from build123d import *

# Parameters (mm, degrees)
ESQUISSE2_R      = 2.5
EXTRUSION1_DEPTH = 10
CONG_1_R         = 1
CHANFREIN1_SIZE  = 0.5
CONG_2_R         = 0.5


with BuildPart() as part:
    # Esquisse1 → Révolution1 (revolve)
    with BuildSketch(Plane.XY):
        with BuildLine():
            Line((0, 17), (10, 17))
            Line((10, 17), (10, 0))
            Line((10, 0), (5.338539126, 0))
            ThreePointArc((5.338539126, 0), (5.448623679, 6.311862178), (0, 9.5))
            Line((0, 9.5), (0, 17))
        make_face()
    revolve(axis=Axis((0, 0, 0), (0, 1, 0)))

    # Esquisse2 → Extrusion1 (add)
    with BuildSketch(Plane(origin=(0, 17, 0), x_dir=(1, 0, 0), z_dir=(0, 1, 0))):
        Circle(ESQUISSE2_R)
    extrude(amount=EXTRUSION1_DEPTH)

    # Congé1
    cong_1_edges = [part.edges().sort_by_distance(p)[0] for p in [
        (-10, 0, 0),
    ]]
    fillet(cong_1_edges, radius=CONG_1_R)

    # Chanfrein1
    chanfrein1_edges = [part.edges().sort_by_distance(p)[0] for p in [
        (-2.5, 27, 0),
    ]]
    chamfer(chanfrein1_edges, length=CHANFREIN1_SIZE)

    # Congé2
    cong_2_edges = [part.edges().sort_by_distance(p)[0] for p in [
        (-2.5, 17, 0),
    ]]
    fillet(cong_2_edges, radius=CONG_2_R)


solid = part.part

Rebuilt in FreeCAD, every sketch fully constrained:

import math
import FreeCAD as App
import Part
import Sketcher


def edges_at(feature, points):
    """Names of the edges that pass closest to the given points."""
    edges = feature.Shape.Edges
    near = lambda p: min(range(len(edges)), key=lambda i: edges[i].distToShape(Part.Vertex(*p))[0])
    return sorted({f"Edge{near(p) + 1}" for p in points})

doc = App.newDocument("Part")
params = doc.addObject("Spreadsheet::Sheet", "Params")
for row, (alias, value) in enumerate([
    ("sketch1_width", "10 mm"),
    ("sketch1_height", "17 mm"),
    ("sketch1_radius", "6.25 mm"),
    ("sketch1_height2", "7.5 mm"),
    ("revolution_angle", "360 deg"),
    ("sketch2_diameter", "5 mm"),
    ("pad1_length", "10 mm"),
    ("fillet_radius", "1 mm"),
    ("chamfer_size", "0.5 mm"),
    ("fillet2_radius", "0.5 mm"),
], start=1):
    params.set(f"A{row}", alias)
    params.set(f"B{row}", "=" + value)
    params.setAlias(f"B{row}", alias)

body = doc.addObject("PartDesign::Body", "Body")

# Sketch on XY plane
sketch1 = body.newObject("Sketcher::SketchObject", "Sketch")
sketch1.AttachmentSupport = (doc.getObject("XY_Plane"), [""])
sketch1.MapMode = "FlatFace"
sketch1.addGeometry(Part.LineSegment(App.Vector(10, 17, 0), App.Vector(0, 17, 0)), False)
sketch1.addGeometry(Part.LineSegment(App.Vector(0, 17, 0), App.Vector(0, 9.5, 0)), False)
sketch1.addGeometry(Part.ArcOfCircle(Part.Circle(App.Vector(0, 3.25, 0), App.Vector(0, 0, 1), 6.25), math.radians(-31.332251), math.radians(90)), False)
sketch1.addGeometry(Part.LineSegment(App.Vector(5.338539, 0, 0), App.Vector(10, 0, 0)), False)
sketch1.addGeometry(Part.LineSegment(App.Vector(10, 0, 0), App.Vector(10, 17, 0)), False)
sketch1.addConstraint(Sketcher.Constraint("Coincident", 0, 2, 1, 1))
sketch1.addConstraint(Sketcher.Constraint("Coincident", 1, 2, 2, 2))
sketch1.addConstraint(Sketcher.Constraint("Coincident", 2, 1, 3, 1))
sketch1.addConstraint(Sketcher.Constraint("Coincident", 3, 2, 4, 1))
sketch1.addConstraint(Sketcher.Constraint("Coincident", 4, 2, 0, 1))
sketch1.addConstraint(Sketcher.Constraint("Horizontal", 0))
sketch1.addConstraint(Sketcher.Constraint("Vertical", 1))
sketch1.addConstraint(Sketcher.Constraint("Horizontal", 3))
sketch1.addConstraint(Sketcher.Constraint("Vertical", 4))
sketch1.addConstraint(Sketcher.Constraint("PointOnObject", 2, 3, -2))
sketch1.addConstraint(Sketcher.Constraint("PointOnObject", 0, 2, -2))
sketch1.addConstraint(Sketcher.Constraint("PointOnObject", 2, 1, -1))
sketch1.addConstraint(Sketcher.Constraint("DistanceX", 0, 2, 0, 1, 10.0))
sketch1.addConstraint(Sketcher.Constraint("DistanceY", 4, 1, 4, 2, 17.0))
sketch1.addConstraint(Sketcher.Constraint("Radius", 2, 6.25))
sketch1.addConstraint(Sketcher.Constraint("DistanceY", 1, 2, 1, 1, 7.5))
sketch1.setExpression("Constraints[12]", "Params.sketch1_width")
sketch1.setExpression("Constraints[13]", "Params.sketch1_height")
sketch1.setExpression("Constraints[14]", "Params.sketch1_radius")
sketch1.setExpression("Constraints[15]", "Params.sketch1_height2")
revolution = body.newObject("PartDesign::Revolution", "Revolution")
revolution.Profile = sketch1
revolution.ReferenceAxis = (sketch1, ["V_Axis"])
revolution.setExpression("Angle", "Params.revolution_angle")

# Sketch on XZ plane
sketch2 = body.newObject("Sketcher::SketchObject", "Sketch001")
sketch2.AttachmentSupport = (doc.getObject("XZ_Plane"), [""])
sketch2.MapMode = "FlatFace"
sketch2.AttachmentOffset = App.Placement(App.Vector(0, 0, -17), App.Rotation())
sketch2.addGeometry(Part.Circle(App.Vector(0, 0, 0), App.Vector(0, 0, 1), 2.5), False)
sketch2.addConstraint(Sketcher.Constraint("Coincident", 0, 3, -1, 1))
sketch2.addConstraint(Sketcher.Constraint("Diameter", 0, 5.0))
sketch2.setExpression("Constraints[1]", "Params.sketch2_diameter")
pad1 = body.newObject("PartDesign::Pad", "Pad")
pad1.Profile = sketch2
pad1.setExpression("Length", "Params.pad1_length")
pad1.Reversed = True
doc.recompute()

fillet = body.newObject("PartDesign::Fillet", "Fillet")
fillet.Base = (pad1, edges_at(pad1, [(-10, 0, 0)]))
fillet.setExpression("Radius", "Params.fillet_radius")
doc.recompute()

chamfer = body.newObject("PartDesign::Chamfer", "Chamfer")
chamfer.Base = (fillet, edges_at(fillet, [(-2.5, 27, 0)]))
chamfer.setExpression("Size", "Params.chamfer_size")
doc.recompute()

fillet2 = body.newObject("PartDesign::Fillet", "Fillet001")
fillet2.Base = (chamfer, edges_at(chamfer, [(-2.5, 17, 0)]))
fillet2.setExpression("Radius", "Params.fillet2_radius")

doc.recompute()
